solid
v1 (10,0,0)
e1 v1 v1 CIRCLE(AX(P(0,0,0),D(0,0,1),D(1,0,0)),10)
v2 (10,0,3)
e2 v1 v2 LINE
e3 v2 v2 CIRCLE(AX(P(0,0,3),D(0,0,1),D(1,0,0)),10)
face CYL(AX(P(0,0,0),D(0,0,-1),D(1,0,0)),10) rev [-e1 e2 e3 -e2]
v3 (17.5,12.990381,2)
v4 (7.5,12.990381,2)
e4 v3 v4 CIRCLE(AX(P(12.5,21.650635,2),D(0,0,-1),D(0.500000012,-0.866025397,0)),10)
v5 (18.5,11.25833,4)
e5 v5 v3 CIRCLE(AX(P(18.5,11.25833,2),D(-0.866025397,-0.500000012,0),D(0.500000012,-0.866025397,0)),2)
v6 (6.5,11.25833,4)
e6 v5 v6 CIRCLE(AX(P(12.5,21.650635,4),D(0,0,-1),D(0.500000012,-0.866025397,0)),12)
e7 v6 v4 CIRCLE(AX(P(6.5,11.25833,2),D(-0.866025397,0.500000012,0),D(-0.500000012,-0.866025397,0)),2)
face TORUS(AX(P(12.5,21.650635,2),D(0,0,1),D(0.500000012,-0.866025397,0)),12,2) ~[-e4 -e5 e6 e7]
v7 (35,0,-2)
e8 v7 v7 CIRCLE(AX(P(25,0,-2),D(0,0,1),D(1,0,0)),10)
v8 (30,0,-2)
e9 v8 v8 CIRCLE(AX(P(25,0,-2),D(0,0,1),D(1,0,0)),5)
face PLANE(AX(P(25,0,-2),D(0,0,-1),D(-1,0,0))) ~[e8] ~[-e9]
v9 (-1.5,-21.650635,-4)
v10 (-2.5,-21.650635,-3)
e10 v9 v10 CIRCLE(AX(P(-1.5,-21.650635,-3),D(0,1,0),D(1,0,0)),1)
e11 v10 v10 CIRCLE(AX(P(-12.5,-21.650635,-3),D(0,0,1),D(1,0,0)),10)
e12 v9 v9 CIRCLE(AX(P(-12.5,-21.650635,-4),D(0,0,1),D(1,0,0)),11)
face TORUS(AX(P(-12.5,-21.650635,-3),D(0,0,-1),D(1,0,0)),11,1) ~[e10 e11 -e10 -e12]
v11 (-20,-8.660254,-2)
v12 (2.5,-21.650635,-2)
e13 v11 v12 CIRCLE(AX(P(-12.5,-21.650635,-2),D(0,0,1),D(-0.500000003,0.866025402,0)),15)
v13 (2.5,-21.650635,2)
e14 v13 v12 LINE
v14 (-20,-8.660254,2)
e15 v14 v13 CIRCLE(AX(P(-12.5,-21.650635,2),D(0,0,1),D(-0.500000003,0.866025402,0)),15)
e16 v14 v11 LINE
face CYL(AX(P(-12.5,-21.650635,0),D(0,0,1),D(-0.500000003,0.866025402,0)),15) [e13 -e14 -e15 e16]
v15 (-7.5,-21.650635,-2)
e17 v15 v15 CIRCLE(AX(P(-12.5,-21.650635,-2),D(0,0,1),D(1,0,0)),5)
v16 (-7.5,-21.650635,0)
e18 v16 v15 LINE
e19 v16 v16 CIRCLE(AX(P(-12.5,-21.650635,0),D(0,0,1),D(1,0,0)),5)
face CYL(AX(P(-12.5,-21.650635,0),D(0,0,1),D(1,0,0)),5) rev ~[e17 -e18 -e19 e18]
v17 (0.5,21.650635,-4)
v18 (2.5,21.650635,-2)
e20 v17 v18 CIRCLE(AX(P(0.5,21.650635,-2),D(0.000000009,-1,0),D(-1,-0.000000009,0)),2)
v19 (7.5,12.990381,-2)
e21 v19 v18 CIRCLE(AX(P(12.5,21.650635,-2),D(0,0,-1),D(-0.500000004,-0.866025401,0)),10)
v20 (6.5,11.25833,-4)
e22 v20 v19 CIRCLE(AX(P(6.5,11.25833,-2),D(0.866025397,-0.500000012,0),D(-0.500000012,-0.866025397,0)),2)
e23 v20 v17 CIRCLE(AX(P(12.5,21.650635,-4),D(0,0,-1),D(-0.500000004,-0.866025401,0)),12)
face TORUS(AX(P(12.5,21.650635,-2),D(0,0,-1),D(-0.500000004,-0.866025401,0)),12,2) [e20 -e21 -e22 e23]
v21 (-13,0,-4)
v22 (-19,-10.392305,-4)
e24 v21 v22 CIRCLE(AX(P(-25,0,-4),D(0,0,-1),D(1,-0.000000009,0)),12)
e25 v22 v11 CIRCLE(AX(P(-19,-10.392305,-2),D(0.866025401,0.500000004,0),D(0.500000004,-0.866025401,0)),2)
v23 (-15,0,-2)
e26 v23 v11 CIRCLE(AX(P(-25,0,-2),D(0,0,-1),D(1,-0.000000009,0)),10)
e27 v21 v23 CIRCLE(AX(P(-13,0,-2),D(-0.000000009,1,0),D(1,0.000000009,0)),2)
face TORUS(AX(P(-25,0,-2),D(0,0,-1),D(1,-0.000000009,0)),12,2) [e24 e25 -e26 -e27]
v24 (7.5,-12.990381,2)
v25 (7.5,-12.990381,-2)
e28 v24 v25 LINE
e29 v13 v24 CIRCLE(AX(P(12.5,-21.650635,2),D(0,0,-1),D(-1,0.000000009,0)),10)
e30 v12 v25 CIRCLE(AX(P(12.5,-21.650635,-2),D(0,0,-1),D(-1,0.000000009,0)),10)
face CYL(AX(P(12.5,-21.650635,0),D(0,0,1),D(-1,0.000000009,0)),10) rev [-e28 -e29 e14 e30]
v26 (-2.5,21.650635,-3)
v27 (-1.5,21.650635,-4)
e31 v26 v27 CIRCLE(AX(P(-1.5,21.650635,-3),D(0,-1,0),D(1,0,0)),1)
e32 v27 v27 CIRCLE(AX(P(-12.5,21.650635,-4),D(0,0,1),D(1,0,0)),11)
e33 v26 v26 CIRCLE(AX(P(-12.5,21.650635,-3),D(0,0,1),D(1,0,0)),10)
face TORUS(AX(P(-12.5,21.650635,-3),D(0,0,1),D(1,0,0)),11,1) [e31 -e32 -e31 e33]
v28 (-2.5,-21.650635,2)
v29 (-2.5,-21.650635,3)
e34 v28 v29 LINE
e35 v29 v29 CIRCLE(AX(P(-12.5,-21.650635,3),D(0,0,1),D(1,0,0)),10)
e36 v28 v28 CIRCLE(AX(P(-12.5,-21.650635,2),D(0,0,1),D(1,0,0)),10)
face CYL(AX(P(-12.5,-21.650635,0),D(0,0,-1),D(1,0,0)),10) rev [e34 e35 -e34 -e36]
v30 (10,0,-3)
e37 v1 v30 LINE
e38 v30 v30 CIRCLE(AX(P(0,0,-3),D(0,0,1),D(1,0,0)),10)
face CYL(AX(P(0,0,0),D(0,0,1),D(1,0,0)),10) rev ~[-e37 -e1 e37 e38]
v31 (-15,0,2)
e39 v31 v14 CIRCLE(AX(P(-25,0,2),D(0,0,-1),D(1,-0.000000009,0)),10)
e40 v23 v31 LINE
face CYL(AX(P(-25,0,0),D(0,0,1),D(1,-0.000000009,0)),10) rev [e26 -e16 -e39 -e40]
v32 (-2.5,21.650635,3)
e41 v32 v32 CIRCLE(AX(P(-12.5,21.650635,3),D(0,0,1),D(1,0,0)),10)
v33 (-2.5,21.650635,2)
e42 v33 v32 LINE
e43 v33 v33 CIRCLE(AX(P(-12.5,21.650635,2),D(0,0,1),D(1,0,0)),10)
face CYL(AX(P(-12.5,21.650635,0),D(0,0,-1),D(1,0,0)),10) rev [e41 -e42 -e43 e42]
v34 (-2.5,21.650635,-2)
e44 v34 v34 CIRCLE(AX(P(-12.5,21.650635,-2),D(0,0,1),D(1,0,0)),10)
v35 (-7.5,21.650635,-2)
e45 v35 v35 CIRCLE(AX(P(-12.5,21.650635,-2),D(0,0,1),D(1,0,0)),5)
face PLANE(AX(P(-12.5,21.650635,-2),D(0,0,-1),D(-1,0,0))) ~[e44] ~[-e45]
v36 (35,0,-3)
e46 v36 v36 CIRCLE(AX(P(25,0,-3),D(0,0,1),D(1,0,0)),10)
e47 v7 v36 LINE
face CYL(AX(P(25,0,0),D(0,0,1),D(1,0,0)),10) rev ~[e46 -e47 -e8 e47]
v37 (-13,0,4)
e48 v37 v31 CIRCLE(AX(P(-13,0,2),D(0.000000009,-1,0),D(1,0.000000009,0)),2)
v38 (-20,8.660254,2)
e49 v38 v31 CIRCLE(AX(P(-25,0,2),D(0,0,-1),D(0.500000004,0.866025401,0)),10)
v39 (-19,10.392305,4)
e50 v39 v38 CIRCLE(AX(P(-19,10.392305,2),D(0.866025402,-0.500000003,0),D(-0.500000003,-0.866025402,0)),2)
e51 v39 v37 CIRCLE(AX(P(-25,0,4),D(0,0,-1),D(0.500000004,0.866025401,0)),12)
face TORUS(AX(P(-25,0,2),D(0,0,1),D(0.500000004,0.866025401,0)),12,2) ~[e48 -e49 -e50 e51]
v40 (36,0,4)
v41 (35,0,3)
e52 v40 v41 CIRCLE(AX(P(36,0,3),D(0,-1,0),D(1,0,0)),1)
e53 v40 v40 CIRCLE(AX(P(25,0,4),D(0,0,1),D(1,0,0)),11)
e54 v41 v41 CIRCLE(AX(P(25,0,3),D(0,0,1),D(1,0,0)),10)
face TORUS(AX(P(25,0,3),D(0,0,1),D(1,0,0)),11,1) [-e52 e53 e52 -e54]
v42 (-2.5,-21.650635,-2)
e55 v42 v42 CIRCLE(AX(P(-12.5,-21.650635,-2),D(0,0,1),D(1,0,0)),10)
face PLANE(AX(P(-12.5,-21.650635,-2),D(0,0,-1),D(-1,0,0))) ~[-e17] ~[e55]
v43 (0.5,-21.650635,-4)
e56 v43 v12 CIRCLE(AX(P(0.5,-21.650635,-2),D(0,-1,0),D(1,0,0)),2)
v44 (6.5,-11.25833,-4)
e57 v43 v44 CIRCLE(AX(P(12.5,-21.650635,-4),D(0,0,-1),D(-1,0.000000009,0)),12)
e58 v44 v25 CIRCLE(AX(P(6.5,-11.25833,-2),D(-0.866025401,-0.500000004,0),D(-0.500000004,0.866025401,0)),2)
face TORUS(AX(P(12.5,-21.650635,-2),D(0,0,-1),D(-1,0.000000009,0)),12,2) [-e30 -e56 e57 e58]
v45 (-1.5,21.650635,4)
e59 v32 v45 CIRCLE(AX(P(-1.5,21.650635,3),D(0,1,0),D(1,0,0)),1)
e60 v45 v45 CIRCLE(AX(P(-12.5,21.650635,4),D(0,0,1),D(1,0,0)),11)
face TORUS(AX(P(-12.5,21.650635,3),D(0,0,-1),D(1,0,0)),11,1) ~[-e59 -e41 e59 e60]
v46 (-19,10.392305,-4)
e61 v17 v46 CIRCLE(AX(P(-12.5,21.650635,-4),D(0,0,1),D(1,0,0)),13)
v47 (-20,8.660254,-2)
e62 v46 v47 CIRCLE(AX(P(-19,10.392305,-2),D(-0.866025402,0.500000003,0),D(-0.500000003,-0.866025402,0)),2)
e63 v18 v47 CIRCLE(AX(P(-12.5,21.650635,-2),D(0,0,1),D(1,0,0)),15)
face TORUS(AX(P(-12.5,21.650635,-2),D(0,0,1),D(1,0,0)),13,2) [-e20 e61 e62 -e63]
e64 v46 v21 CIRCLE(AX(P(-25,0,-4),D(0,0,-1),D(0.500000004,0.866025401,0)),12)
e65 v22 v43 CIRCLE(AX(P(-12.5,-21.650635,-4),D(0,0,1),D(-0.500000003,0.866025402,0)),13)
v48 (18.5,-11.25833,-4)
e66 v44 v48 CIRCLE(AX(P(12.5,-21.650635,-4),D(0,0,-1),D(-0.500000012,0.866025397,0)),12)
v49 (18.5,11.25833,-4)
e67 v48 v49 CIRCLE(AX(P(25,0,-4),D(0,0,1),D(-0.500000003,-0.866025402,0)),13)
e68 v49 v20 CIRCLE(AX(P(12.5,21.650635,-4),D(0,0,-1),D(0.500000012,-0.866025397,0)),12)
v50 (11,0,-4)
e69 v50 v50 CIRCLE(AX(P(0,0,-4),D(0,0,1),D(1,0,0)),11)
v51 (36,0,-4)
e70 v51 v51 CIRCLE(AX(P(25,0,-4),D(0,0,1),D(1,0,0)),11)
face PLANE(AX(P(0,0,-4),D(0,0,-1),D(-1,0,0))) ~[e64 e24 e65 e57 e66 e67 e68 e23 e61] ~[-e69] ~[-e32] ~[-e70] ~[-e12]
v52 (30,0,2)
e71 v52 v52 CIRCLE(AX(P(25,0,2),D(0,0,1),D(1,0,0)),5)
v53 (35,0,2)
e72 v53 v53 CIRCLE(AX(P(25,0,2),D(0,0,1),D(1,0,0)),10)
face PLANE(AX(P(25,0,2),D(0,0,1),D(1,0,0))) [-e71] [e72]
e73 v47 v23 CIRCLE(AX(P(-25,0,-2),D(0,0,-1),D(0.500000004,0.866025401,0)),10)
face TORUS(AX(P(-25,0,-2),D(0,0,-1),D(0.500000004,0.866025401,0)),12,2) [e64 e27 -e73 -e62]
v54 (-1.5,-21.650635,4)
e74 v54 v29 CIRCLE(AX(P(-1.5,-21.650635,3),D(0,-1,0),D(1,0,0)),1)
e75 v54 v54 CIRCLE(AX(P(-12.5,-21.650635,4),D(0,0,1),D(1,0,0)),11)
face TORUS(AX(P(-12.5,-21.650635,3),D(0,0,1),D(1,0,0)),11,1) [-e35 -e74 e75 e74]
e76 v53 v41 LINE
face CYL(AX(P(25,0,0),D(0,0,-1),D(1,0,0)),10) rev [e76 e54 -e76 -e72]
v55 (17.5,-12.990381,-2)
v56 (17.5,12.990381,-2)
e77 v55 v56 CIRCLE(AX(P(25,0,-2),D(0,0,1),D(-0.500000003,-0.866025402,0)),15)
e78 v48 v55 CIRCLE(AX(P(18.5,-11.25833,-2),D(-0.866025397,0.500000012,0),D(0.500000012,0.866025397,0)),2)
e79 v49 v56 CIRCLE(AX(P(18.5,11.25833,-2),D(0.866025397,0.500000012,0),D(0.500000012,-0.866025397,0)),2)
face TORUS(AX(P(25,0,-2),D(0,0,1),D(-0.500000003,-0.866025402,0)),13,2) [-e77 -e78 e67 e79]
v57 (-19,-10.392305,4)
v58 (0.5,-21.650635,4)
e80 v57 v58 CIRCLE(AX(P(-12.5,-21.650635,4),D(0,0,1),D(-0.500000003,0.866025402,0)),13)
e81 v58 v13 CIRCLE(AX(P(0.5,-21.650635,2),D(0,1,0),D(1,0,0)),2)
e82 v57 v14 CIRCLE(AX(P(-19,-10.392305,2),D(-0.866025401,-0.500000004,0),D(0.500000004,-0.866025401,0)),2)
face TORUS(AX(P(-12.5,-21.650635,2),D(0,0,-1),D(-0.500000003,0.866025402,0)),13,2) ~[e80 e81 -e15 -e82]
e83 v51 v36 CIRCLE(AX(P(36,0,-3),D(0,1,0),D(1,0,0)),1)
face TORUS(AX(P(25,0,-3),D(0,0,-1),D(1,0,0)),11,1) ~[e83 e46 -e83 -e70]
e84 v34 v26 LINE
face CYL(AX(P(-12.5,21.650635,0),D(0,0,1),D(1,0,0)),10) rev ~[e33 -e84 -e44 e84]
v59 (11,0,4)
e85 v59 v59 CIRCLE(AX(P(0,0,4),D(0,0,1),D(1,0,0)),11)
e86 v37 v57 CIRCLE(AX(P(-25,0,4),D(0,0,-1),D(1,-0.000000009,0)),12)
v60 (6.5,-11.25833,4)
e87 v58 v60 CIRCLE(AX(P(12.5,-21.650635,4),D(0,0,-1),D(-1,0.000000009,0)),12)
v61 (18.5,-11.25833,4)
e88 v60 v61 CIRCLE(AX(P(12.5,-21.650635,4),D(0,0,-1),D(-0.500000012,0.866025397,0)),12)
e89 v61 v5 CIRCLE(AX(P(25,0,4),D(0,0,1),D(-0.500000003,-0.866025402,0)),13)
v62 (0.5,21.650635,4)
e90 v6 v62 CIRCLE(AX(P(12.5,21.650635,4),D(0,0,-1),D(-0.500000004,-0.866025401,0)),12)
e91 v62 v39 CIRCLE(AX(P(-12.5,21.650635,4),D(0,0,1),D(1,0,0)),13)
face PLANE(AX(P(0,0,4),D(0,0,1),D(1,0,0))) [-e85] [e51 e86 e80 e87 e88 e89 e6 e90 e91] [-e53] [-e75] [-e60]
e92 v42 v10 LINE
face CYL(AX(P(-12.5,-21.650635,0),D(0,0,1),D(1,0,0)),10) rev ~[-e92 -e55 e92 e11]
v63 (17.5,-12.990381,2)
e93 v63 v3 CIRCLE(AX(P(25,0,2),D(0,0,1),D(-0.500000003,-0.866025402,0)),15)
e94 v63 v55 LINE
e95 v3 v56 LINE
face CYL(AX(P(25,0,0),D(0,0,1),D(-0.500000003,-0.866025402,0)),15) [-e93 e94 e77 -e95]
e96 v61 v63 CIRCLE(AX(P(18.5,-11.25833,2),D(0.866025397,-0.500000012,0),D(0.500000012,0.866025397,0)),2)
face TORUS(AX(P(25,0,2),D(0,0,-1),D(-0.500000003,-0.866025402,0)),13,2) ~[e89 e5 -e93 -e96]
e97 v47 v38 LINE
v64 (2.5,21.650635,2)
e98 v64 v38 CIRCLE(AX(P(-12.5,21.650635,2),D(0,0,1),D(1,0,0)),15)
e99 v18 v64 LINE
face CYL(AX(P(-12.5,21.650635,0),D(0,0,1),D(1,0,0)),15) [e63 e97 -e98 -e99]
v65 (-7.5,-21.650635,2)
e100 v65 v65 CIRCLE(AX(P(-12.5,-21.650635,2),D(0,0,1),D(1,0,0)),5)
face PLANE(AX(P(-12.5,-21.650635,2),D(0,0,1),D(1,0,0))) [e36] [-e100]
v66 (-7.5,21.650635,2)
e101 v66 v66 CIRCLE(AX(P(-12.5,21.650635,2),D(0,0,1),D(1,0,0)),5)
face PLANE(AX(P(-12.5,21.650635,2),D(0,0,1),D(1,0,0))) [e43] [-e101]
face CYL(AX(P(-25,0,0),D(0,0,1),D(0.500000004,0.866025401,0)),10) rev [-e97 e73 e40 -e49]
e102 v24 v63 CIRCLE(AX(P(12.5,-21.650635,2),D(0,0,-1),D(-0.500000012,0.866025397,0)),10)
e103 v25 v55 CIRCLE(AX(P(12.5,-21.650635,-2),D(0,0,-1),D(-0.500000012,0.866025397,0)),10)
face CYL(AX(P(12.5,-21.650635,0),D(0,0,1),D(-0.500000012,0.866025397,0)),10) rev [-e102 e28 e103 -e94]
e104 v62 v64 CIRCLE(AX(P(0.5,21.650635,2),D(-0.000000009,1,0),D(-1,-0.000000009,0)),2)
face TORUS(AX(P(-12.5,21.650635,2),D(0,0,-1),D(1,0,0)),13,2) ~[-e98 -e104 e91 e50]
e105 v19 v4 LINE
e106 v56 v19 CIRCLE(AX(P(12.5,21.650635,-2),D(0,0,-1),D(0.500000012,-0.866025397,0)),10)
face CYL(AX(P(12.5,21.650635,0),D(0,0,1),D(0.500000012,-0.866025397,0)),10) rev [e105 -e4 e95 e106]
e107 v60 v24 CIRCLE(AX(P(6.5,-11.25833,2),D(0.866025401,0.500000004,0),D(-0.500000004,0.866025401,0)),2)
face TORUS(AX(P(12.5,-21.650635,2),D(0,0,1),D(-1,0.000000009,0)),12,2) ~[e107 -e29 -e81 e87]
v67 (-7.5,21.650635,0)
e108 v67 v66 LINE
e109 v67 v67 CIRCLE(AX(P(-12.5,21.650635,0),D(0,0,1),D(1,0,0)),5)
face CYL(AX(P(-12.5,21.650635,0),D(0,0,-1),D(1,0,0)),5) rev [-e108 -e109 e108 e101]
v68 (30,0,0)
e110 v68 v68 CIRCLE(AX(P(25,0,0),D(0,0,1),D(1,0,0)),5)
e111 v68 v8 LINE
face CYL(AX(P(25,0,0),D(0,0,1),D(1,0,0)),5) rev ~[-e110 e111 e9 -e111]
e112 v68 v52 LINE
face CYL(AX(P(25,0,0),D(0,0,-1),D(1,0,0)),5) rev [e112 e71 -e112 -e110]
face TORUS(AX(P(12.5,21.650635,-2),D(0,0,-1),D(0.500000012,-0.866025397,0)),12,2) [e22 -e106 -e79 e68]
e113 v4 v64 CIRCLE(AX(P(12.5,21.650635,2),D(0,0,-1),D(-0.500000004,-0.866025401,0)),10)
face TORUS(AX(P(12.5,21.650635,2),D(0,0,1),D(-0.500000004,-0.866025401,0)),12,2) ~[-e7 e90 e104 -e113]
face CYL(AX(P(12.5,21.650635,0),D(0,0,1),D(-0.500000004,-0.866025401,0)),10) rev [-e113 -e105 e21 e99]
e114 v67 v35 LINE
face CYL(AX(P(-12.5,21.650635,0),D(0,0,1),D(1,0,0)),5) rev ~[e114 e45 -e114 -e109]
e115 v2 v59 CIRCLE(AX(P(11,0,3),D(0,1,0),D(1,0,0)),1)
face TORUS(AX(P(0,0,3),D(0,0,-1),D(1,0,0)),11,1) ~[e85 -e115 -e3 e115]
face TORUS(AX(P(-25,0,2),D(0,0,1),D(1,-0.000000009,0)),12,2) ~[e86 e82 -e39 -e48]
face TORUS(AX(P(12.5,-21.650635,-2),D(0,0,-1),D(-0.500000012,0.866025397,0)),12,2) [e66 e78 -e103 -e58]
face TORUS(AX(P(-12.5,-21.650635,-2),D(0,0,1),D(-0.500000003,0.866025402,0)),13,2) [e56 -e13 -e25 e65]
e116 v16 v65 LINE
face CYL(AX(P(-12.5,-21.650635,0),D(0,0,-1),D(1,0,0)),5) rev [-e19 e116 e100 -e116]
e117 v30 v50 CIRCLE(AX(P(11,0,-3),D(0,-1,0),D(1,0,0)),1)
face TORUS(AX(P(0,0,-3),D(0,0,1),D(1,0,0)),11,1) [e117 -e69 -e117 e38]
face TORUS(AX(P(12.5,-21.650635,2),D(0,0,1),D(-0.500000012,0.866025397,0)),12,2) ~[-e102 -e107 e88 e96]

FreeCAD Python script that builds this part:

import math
import FreeCAD as App
import Part
import Sketcher

V = App.Vector


def edges_at(feature, points):
    """Names of the edges that pass closest to the given points."""
    edges = feature.Shape.Edges
    near = lambda p: min(range(len(edges)), key=lambda i: edges[i].distToShape(Part.Vertex(*p))[0])
    return sorted({f"Edge{near(p) + 1}" for p in points})

doc = App.newDocument("Part")
params = doc.addObject("Spreadsheet::Sheet", "Params")
for row, (alias, value) in enumerate([
    ("sketch1_diameter", "20 mm"),
    ("sketch1_radius", "15 mm"),
    ("pad1_length", "4 mm"),
    ("sketch2_diameter", "20 mm"),
    ("sketch2_diameter2", "10 mm"),
    ("pad2_length", "2 mm"),
    ("fillet_radius", "1 mm"),
    ("fillet2_radius", "2 mm"),
], start=1):
    params.set(f"A{row}", alias)
    params.set(f"B{row}", "=" + value)
    params.setAlias(f"B{row}", alias)

body = doc.addObject("PartDesign::Body", "Body")

sketch1 = body.newObject("Sketcher::SketchObject", "Sketch")
sketch1.AttachmentSupport = (doc.getObject("XY_Plane"), [""])
sketch1.MapMode = "FlatFace"
sketch1.addGeometry([
    Part.ArcOfCircle(Part.Circle(V(12, -22, 0), V(0, 0, 1), 10), math.radians(60), math.radians(120)),
    Part.ArcOfCircle(Part.Circle(V(25, 0, 0), V(0, 0, 1), 15), math.radians(-120), math.radians(120)),
    Part.ArcOfCircle(Part.Circle(V(12, 22, 0), V(0, 0, 1), 10), math.radians(-120), math.radians(-60)),
    Part.ArcOfCircle(Part.Circle(V(13, 22, 0), V(0, 0, 1), 10), math.radians(-180), math.radians(-120)),
    Part.ArcOfCircle(Part.Circle(V(-12, 22, 0), V(0, 0, 1), 15), math.radians(0), math.radians(240)),
    Part.ArcOfCircle(Part.Circle(V(-25, 0, 0), V(0, 0, 1), 10), math.radians(0), math.radians(60)),
    Part.ArcOfCircle(Part.Circle(V(-25, 0, 0), V(0, 0, 1), 10), math.radians(-60), math.radians(0)),
    Part.ArcOfCircle(Part.Circle(V(-12, -22, 0), V(0, 0, 1), 15), math.radians(120), math.radians(360)),
    Part.ArcOfCircle(Part.Circle(V(13, -22, 0), V(0, 0, 1), 10), math.radians(120), math.radians(180)),
    Part.Circle(V(-12, -22, 0), V(0, 0, 1), 10),
    Part.Circle(V(0, 0, 0), V(0, 0, 1), 10),
    Part.Circle(V(-12, 22, 0), V(0, 0, 1), 10),
    Part.Circle(V(25, 0, 0), V(0, 0, 1), 10),
], False)
sketch1.addConstraint([
    Sketcher.Constraint("Tangent", 0, 1, 1, 1),
    Sketcher.Constraint("Tangent", 1, 2, 2, 2),
    Sketcher.Constraint("Tangent", 2, 1, 3, 2),
    Sketcher.Constraint("Tangent", 3, 1, 4, 1),
    Sketcher.Constraint("Tangent", 4, 2, 5, 2),
    Sketcher.Constraint("Tangent", 5, 1, 6, 2),
    Sketcher.Constraint("Tangent", 6, 1, 7, 1),
    Sketcher.Constraint("Tangent", 7, 2, 8, 2),
    Sketcher.Constraint("Tangent", 8, 1, 0, 2),
    Sketcher.Constraint("Coincident", 10, 3, -1, 1),
    Sketcher.Constraint("Coincident", 9, 3, 7, 3),
    Sketcher.Constraint("Coincident", 11, 3, 4, 3),
    Sketcher.Constraint("Coincident", 12, 3, 1, 3),
    Sketcher.Constraint("Equal", 0, 2),
    Sketcher.Constraint("Equal", 2, 3),
    Sketcher.Constraint("Equal", 1, 4),
    Sketcher.Constraint("Equal", 3, 5),
    Sketcher.Constraint("Equal", 5, 6),
    Sketcher.Constraint("Equal", 4, 7),
    Sketcher.Constraint("Equal", 6, 8),
    Sketcher.Constraint("Equal", 8, 9),
    Sketcher.Constraint("Equal", 9, 10),
    Sketcher.Constraint("Equal", 10, 11),
    Sketcher.Constraint("Equal", 11, 12),
    Sketcher.Constraint("Symmetric", 0, 3, 4, 3, -1, 1),
    Sketcher.Constraint("Symmetric", 2, 3, 4, 3, -2),
    Sketcher.Constraint("PointOnObject", 5, 3, -1),
    Sketcher.Constraint("PointOnObject", 5, 1, -1),
    Sketcher.Constraint("Horizontal", 1, 2, 2, 1),
    Sketcher.Constraint("Horizontal", 0, 1, 8, 1),
    Sketcher.Constraint("Diameter", 9, 20.0),
    Sketcher.Constraint("Radius", 1, 15.0),
    Sketcher.Constraint("DistanceX", -1, 1, 1, 3, 25.0),
])
sketch1.setExpression("Constraints[30]", "Params.sketch1_diameter")
sketch1.setExpression("Constraints[31]", "Params.sketch1_radius")
pad1 = body.newObject("PartDesign::Pad", "Pad")
pad1.Profile = sketch1
pad1.setExpression("Length", "Params.pad1_length")

sketch2 = body.newObject("Sketcher::SketchObject", "Sketch001")
sketch2.AttachmentSupport = (doc.getObject("XY_Plane"), [""])
sketch2.MapMode = "FlatFace"
sketch2.addGeometry([
    Part.Circle(V(-12, 22, 0), V(0, 0, 1), 10),
    Part.Circle(V(-12, 22, 0), V(0, 0, 1), 5),
    Part.Circle(V(25, 0, 0), V(0, 0, 1), 10),
    Part.Circle(V(25, 0, 0), V(0, 0, 1), 5),
    Part.Circle(V(-12, -22, 0), V(0, 0, 1), 10),
    Part.Circle(V(-12, -22, 0), V(0, 0, 1), 5),
], False)
sketch2.addConstraint([
    Sketcher.Constraint("Coincident", 1, 3, 0, 3),
    Sketcher.Constraint("Coincident", 3, 3, 2, 3),
    Sketcher.Constraint("Coincident", 5, 3, 4, 3),
    Sketcher.Constraint("Equal", 0, 2),
    Sketcher.Constraint("Equal", 1, 3),
    Sketcher.Constraint("Equal", 2, 4),
    Sketcher.Constraint("Equal", 3, 5),
    Sketcher.Constraint("Symmetric", 0, 3, 4, 3, -1),
    Sketcher.Constraint("PointOnObject", 2, 3, -1),
    Sketcher.Constraint("Diameter", 0, 20.0),
    Sketcher.Constraint("Diameter", 1, 10.0),
    Sketcher.Constraint("DistanceX", -1, 1, 2, 3, 25.0),
    Sketcher.Constraint("DistanceX", 0, 3, -1, 1, 12.5),
    Sketcher.Constraint("DistanceY", 4, 3, 0, 3, 43.30127),
])
sketch2.setExpression("Constraints[9]", "Params.sketch2_diameter")
sketch2.setExpression("Constraints[10]", "Params.sketch2_diameter2")
pad2 = body.newObject("PartDesign::Pad", "Pad001")
pad2.Profile = sketch2
pad2.setExpression("Length", "Params.pad2_length")
doc.recompute()

fillet = body.newObject("PartDesign::Fillet", "Fillet")
fillet.Base = (pad2, edges_at(pad2, [
    (-22.5, 21.651, 4),
    (-10, 0, 4),
    (15, 0, 4),
    (-22.5, -21.651, 4),
]))
fillet.setExpression("Radius", "Params.fillet_radius")
doc.recompute()

fillet2 = body.newObject("PartDesign::Fillet", "Fillet001")
fillet2.Base = (fillet, edges_at(fillet, [
    (12.5, 11.651, 4),
    (-20, 34.641, 4),
    (-16.34, -5, 4),
    (-20, -34.641, 4),
    (12.5, -11.651, 4),
    (40, 0, 4),
]))
fillet2.setExpression("Radius", "Params.fillet2_radius")
body2 = doc.addObject("PartDesign::Body", "Body001")
doc.recompute()

body2.BaseFeature = body
doc.recompute()

mirroring = doc.addObject("Part::Mirroring", "Mirroring")
mirroring.Source = body
mirroring.Base = V(0, 0, 0)
mirroring.Normal = V(0, 0, 1)
body3 = doc.addObject("PartDesign::Body", "Body002")
body3.BaseFeature = mirroring
boolean = body2.newObject("PartDesign::Boolean", "Boolean")
boolean.Type = "Fuse"
boolean.addObjects([body3])
doc.recompute()
mirroring.Visibility = False

doc.recompute()
